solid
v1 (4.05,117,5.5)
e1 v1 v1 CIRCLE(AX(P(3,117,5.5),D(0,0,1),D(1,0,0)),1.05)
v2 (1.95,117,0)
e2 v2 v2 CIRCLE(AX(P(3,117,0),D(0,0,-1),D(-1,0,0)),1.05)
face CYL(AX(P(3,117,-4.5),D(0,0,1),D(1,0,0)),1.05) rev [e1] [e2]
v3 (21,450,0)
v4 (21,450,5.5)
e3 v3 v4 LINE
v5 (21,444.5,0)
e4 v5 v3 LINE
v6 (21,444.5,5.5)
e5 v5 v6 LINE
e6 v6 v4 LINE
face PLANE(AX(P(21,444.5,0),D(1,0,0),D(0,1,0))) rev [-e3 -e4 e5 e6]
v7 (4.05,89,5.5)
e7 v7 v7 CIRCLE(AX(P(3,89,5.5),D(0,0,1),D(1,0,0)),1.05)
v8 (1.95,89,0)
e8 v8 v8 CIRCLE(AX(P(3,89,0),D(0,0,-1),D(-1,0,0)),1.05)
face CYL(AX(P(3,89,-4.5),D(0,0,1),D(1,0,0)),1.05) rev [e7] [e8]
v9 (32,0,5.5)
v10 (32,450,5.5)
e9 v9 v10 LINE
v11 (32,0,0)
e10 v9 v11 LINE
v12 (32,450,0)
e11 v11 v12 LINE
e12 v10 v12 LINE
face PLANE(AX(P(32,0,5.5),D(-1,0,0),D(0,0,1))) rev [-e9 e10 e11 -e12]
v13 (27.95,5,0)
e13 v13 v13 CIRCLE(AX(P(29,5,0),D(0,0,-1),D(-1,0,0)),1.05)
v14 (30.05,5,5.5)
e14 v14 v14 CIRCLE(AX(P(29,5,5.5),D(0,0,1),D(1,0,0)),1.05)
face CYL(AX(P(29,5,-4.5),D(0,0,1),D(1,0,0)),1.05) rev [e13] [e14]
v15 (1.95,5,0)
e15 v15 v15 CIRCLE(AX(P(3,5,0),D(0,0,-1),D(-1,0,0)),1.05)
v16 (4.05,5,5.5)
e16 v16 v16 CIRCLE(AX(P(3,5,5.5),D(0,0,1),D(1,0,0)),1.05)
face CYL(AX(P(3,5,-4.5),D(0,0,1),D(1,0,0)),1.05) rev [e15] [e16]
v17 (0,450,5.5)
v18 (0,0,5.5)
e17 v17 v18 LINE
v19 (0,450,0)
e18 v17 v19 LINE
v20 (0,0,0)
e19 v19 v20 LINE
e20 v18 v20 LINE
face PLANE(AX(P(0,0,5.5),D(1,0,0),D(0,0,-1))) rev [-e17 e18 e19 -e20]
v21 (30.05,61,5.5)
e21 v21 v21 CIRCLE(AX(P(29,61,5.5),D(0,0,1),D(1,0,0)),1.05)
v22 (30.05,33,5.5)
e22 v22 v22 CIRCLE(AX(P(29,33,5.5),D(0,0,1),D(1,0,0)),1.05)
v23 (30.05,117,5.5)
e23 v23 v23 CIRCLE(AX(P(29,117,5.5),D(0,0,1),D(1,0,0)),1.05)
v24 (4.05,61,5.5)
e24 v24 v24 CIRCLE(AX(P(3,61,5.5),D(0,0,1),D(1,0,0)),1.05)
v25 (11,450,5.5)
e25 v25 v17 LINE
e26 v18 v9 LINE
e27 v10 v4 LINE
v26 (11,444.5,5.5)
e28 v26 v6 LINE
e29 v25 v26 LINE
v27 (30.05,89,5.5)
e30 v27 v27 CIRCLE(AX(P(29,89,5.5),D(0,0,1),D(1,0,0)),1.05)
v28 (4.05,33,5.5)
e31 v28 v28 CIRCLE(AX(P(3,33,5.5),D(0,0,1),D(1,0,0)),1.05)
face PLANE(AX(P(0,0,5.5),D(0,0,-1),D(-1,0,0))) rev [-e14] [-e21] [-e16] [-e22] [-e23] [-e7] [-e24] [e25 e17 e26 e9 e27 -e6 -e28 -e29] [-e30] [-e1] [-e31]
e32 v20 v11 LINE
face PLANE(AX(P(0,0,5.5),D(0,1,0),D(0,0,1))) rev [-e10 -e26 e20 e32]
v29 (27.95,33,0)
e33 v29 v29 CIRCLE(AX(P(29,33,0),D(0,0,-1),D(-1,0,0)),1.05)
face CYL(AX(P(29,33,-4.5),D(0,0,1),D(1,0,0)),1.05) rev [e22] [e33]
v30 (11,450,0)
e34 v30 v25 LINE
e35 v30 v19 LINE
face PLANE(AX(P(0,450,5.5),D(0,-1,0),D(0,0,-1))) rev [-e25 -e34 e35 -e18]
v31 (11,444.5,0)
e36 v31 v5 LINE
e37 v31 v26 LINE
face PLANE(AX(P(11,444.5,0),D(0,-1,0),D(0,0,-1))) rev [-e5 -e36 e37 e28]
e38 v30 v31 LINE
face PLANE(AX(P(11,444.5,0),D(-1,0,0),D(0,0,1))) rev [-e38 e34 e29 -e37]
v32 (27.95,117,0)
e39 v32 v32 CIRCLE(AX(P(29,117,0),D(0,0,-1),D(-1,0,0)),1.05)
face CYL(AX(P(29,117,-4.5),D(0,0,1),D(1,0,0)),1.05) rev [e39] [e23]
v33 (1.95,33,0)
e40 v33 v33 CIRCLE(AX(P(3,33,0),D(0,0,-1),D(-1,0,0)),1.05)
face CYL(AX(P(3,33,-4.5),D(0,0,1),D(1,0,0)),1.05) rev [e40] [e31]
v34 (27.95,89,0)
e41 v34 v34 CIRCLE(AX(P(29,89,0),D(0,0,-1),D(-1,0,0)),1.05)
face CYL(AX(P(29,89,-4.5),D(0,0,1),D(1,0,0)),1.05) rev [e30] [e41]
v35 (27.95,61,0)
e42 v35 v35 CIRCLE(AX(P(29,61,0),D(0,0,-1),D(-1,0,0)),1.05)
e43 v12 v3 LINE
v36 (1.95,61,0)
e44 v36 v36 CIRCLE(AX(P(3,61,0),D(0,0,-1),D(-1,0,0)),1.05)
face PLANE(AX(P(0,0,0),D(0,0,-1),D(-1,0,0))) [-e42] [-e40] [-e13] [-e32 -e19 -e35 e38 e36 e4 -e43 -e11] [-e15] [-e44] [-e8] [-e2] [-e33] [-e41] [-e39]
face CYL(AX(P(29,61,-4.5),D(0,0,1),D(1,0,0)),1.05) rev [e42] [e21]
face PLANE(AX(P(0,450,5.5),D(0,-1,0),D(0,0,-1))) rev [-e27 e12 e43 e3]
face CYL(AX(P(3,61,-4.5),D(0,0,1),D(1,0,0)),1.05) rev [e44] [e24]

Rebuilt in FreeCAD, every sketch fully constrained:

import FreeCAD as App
import Part
import Sketcher

V = App.Vector

doc = App.newDocument("Part")
body = doc.addObject("PartDesign::Body", "Body")

# Sketch on XY plane
sketch1 = doc.addObject("Sketcher::SketchObject", "Sketch")
body.addObject(sketch1)
sketch1.AttachmentSupport = (doc.XY_Plane, [""])
sketch1.MapMode = "FlatFace"
sketch1.addGeometry([
    Part.LineSegment(V(0, 450, 0), V(0, 0, 0)),
    Part.LineSegment(V(0, 0, 0), V(32, 0, 0)),
    Part.LineSegment(V(32, 0, 0), V(32, 450, 0)),
    Part.LineSegment(V(32, 450, 0), V(0, 450, 0)),
], False)
sketch1.addConstraint([
    Sketcher.Constraint("Coincident", 0, 2, 1, 1),
    Sketcher.Constraint("Coincident", 1, 2, 2, 1),
    Sketcher.Constraint("Coincident", 2, 2, 3, 1),
    Sketcher.Constraint("Coincident", 3, 2, 0, 1),
    Sketcher.Constraint("Vertical", 0),
    Sketcher.Constraint("Horizontal", 1),
    Sketcher.Constraint("Vertical", 2),
    Sketcher.Constraint("Horizontal", 3),
    Sketcher.Constraint("Coincident", 0, 2, -1, 1),
    Sketcher.Constraint("DistanceX", 1, 1, 1, 2, 32.0),
    Sketcher.Constraint("DistanceY", 0, 2, 0, 1, 450.0),
])
pad1 = doc.addObject("PartDesign::Pad", "Pad")
body.addObject(pad1)
pad1.Profile = sketch1
pad1.Length = 5.5

# Sketch on XY plane
sketch2 = doc.addObject("Sketcher::SketchObject", "Sketch001")
body.addObject(sketch2)
sketch2.AttachmentSupport = (doc.XY_Plane, [""])
sketch2.MapMode = "FlatFace"
sketch2.AttachmentOffset = App.Placement(V(0, 0, 5.5), App.Rotation())
sketch2.addGeometry([
    Part.LineSegment(V(11, 450, 0), V(11, 444, 0)),
    Part.LineSegment(V(11, 444, 0), V(21, 444, 0)),
    Part.LineSegment(V(21, 444, 0), V(21, 450, 0)),
    Part.LineSegment(V(21, 450, 0), V(11, 450, 0)),
], False)
sketch2.addConstraint([
    Sketcher.Constraint("Coincident", 0, 2, 1, 1),
    Sketcher.Constraint("Coincident", 1, 2, 2, 1),
    Sketcher.Constraint("Coincident", 2, 2, 3, 1),
    Sketcher.Constraint("Coincident", 3, 2, 0, 1),
    Sketcher.Constraint("Vertical", 0),
    Sketcher.Constraint("Horizontal", 1),
    Sketcher.Constraint("Vertical", 2),
    Sketcher.Constraint("Horizontal", 3),
    Sketcher.Constraint("DistanceX", 1, 1, 1, 2, 10.0),
    Sketcher.Constraint("DistanceY", 0, 2, 0, 1, 5.5),
    Sketcher.Constraint("DistanceX", -1, 1, 0, 2, 11.0),
    Sketcher.Constraint("DistanceY", -1, 1, 2, 2, 450.0),
])
pocket1 = doc.addObject("PartDesign::Pocket", "Pocket")
body.addObject(pocket1)
pocket1.Profile = sketch2
pocket1.Length = 5.5

# Sketch on XY plane
sketch3 = doc.addObject("Sketcher::SketchObject", "Sketch002")
body.addObject(sketch3)
sketch3.AttachmentSupport = (doc.XY_Plane, [""])
sketch3.MapMode = "FlatFace"
sketch3.AttachmentOffset = App.Placement(V(0, 0, 5.5), App.Rotation())
sketch3.addGeometry([
    Part.Circle(V(3, 5, 0), V(0, 0, 1), 1.1),  # 0
    Part.Circle(V(29, 5, 0), V(0, 0, 1), 1.1),  # 1
    Part.Circle(V(3, 33, 0), V(0, 0, 1), 1.1),  # 2
    Part.Circle(V(29, 33, 0), V(0, 0, 1), 1.1),  # 3
    Part.Circle(V(3, 61, 0), V(0, 0, 1), 1.1),  # 4
    Part.Circle(V(29, 61, 0), V(0, 0, 1), 1.1),  # 5
    Part.Circle(V(3, 89, 0), V(0, 0, 1), 1.1),  # 6
    Part.Circle(V(29, 89, 0), V(0, 0, 1), 1.1),  # 7
    Part.Circle(V(3, 117, 0), V(0, 0, 1), 1.1),  # 8
    Part.Circle(V(29, 117, 0), V(0, 0, 1), 1.1),  # 9
], False)
sketch3.addConstraint([
    Sketcher.Constraint("Equal", 0, 1),
    Sketcher.Constraint("Equal", 1, 2),
    Sketcher.Constraint("Equal", 2, 3),
    Sketcher.Constraint("Equal", 3, 4),
    Sketcher.Constraint("Equal", 4, 5),
    Sketcher.Constraint("Equal", 5, 6),
    Sketcher.Constraint("Equal", 6, 7),
    Sketcher.Constraint("Equal", 7, 8),
    Sketcher.Constraint("Equal", 8, 9),
    Sketcher.Constraint("Horizontal", 0, 3, 1, 3),
    Sketcher.Constraint("Horizontal", 2, 3, 3, 3),
    Sketcher.Constraint("Horizontal", 4, 3, 5, 3),
    Sketcher.Constraint("Horizontal", 6, 3, 7, 3),
    Sketcher.Constraint("Horizontal", 8, 3, 9, 3),
    Sketcher.Constraint("Vertical", 0, 3, 2, 3),
    Sketcher.Constraint("Vertical", 1, 3, 3, 3),
    Sketcher.Constraint("Vertical", 2, 3, 4, 3),
    Sketcher.Constraint("Vertical", 3, 3, 5, 3),
    Sketcher.Constraint("Vertical", 4, 3, 6, 3),
    Sketcher.Constraint("Vertical", 5, 3, 7, 3),
    Sketcher.Constraint("Vertical", 6, 3, 8, 3),
    Sketcher.Constraint("Vertical", 7, 3, 9, 3),
    Sketcher.Constraint("Diameter", 0, 2.1),
    Sketcher.Constraint("DistanceX", -1, 1, 0, 3, 3.0),
    Sketcher.Constraint("DistanceY", -1, 1, 0, 3, 5.0),
    Sketcher.Constraint("DistanceX", -1, 1, 1, 3, 29.0),
    Sketcher.Constraint("DistanceY", -1, 1, 2, 3, 33.0),
    Sketcher.Constraint("DistanceY", -1, 1, 4, 3, 61.0),
    Sketcher.Constraint("DistanceY", -1, 1, 6, 3, 89.0),
    Sketcher.Constraint("DistanceY", -1, 1, 8, 3, 117.0),
])
pocket2 = doc.addObject("PartDesign::Pocket", "Pocket001")
body.addObject(pocket2)
pocket2.Profile = sketch3
pocket2.Length = 10

doc.recompute()
